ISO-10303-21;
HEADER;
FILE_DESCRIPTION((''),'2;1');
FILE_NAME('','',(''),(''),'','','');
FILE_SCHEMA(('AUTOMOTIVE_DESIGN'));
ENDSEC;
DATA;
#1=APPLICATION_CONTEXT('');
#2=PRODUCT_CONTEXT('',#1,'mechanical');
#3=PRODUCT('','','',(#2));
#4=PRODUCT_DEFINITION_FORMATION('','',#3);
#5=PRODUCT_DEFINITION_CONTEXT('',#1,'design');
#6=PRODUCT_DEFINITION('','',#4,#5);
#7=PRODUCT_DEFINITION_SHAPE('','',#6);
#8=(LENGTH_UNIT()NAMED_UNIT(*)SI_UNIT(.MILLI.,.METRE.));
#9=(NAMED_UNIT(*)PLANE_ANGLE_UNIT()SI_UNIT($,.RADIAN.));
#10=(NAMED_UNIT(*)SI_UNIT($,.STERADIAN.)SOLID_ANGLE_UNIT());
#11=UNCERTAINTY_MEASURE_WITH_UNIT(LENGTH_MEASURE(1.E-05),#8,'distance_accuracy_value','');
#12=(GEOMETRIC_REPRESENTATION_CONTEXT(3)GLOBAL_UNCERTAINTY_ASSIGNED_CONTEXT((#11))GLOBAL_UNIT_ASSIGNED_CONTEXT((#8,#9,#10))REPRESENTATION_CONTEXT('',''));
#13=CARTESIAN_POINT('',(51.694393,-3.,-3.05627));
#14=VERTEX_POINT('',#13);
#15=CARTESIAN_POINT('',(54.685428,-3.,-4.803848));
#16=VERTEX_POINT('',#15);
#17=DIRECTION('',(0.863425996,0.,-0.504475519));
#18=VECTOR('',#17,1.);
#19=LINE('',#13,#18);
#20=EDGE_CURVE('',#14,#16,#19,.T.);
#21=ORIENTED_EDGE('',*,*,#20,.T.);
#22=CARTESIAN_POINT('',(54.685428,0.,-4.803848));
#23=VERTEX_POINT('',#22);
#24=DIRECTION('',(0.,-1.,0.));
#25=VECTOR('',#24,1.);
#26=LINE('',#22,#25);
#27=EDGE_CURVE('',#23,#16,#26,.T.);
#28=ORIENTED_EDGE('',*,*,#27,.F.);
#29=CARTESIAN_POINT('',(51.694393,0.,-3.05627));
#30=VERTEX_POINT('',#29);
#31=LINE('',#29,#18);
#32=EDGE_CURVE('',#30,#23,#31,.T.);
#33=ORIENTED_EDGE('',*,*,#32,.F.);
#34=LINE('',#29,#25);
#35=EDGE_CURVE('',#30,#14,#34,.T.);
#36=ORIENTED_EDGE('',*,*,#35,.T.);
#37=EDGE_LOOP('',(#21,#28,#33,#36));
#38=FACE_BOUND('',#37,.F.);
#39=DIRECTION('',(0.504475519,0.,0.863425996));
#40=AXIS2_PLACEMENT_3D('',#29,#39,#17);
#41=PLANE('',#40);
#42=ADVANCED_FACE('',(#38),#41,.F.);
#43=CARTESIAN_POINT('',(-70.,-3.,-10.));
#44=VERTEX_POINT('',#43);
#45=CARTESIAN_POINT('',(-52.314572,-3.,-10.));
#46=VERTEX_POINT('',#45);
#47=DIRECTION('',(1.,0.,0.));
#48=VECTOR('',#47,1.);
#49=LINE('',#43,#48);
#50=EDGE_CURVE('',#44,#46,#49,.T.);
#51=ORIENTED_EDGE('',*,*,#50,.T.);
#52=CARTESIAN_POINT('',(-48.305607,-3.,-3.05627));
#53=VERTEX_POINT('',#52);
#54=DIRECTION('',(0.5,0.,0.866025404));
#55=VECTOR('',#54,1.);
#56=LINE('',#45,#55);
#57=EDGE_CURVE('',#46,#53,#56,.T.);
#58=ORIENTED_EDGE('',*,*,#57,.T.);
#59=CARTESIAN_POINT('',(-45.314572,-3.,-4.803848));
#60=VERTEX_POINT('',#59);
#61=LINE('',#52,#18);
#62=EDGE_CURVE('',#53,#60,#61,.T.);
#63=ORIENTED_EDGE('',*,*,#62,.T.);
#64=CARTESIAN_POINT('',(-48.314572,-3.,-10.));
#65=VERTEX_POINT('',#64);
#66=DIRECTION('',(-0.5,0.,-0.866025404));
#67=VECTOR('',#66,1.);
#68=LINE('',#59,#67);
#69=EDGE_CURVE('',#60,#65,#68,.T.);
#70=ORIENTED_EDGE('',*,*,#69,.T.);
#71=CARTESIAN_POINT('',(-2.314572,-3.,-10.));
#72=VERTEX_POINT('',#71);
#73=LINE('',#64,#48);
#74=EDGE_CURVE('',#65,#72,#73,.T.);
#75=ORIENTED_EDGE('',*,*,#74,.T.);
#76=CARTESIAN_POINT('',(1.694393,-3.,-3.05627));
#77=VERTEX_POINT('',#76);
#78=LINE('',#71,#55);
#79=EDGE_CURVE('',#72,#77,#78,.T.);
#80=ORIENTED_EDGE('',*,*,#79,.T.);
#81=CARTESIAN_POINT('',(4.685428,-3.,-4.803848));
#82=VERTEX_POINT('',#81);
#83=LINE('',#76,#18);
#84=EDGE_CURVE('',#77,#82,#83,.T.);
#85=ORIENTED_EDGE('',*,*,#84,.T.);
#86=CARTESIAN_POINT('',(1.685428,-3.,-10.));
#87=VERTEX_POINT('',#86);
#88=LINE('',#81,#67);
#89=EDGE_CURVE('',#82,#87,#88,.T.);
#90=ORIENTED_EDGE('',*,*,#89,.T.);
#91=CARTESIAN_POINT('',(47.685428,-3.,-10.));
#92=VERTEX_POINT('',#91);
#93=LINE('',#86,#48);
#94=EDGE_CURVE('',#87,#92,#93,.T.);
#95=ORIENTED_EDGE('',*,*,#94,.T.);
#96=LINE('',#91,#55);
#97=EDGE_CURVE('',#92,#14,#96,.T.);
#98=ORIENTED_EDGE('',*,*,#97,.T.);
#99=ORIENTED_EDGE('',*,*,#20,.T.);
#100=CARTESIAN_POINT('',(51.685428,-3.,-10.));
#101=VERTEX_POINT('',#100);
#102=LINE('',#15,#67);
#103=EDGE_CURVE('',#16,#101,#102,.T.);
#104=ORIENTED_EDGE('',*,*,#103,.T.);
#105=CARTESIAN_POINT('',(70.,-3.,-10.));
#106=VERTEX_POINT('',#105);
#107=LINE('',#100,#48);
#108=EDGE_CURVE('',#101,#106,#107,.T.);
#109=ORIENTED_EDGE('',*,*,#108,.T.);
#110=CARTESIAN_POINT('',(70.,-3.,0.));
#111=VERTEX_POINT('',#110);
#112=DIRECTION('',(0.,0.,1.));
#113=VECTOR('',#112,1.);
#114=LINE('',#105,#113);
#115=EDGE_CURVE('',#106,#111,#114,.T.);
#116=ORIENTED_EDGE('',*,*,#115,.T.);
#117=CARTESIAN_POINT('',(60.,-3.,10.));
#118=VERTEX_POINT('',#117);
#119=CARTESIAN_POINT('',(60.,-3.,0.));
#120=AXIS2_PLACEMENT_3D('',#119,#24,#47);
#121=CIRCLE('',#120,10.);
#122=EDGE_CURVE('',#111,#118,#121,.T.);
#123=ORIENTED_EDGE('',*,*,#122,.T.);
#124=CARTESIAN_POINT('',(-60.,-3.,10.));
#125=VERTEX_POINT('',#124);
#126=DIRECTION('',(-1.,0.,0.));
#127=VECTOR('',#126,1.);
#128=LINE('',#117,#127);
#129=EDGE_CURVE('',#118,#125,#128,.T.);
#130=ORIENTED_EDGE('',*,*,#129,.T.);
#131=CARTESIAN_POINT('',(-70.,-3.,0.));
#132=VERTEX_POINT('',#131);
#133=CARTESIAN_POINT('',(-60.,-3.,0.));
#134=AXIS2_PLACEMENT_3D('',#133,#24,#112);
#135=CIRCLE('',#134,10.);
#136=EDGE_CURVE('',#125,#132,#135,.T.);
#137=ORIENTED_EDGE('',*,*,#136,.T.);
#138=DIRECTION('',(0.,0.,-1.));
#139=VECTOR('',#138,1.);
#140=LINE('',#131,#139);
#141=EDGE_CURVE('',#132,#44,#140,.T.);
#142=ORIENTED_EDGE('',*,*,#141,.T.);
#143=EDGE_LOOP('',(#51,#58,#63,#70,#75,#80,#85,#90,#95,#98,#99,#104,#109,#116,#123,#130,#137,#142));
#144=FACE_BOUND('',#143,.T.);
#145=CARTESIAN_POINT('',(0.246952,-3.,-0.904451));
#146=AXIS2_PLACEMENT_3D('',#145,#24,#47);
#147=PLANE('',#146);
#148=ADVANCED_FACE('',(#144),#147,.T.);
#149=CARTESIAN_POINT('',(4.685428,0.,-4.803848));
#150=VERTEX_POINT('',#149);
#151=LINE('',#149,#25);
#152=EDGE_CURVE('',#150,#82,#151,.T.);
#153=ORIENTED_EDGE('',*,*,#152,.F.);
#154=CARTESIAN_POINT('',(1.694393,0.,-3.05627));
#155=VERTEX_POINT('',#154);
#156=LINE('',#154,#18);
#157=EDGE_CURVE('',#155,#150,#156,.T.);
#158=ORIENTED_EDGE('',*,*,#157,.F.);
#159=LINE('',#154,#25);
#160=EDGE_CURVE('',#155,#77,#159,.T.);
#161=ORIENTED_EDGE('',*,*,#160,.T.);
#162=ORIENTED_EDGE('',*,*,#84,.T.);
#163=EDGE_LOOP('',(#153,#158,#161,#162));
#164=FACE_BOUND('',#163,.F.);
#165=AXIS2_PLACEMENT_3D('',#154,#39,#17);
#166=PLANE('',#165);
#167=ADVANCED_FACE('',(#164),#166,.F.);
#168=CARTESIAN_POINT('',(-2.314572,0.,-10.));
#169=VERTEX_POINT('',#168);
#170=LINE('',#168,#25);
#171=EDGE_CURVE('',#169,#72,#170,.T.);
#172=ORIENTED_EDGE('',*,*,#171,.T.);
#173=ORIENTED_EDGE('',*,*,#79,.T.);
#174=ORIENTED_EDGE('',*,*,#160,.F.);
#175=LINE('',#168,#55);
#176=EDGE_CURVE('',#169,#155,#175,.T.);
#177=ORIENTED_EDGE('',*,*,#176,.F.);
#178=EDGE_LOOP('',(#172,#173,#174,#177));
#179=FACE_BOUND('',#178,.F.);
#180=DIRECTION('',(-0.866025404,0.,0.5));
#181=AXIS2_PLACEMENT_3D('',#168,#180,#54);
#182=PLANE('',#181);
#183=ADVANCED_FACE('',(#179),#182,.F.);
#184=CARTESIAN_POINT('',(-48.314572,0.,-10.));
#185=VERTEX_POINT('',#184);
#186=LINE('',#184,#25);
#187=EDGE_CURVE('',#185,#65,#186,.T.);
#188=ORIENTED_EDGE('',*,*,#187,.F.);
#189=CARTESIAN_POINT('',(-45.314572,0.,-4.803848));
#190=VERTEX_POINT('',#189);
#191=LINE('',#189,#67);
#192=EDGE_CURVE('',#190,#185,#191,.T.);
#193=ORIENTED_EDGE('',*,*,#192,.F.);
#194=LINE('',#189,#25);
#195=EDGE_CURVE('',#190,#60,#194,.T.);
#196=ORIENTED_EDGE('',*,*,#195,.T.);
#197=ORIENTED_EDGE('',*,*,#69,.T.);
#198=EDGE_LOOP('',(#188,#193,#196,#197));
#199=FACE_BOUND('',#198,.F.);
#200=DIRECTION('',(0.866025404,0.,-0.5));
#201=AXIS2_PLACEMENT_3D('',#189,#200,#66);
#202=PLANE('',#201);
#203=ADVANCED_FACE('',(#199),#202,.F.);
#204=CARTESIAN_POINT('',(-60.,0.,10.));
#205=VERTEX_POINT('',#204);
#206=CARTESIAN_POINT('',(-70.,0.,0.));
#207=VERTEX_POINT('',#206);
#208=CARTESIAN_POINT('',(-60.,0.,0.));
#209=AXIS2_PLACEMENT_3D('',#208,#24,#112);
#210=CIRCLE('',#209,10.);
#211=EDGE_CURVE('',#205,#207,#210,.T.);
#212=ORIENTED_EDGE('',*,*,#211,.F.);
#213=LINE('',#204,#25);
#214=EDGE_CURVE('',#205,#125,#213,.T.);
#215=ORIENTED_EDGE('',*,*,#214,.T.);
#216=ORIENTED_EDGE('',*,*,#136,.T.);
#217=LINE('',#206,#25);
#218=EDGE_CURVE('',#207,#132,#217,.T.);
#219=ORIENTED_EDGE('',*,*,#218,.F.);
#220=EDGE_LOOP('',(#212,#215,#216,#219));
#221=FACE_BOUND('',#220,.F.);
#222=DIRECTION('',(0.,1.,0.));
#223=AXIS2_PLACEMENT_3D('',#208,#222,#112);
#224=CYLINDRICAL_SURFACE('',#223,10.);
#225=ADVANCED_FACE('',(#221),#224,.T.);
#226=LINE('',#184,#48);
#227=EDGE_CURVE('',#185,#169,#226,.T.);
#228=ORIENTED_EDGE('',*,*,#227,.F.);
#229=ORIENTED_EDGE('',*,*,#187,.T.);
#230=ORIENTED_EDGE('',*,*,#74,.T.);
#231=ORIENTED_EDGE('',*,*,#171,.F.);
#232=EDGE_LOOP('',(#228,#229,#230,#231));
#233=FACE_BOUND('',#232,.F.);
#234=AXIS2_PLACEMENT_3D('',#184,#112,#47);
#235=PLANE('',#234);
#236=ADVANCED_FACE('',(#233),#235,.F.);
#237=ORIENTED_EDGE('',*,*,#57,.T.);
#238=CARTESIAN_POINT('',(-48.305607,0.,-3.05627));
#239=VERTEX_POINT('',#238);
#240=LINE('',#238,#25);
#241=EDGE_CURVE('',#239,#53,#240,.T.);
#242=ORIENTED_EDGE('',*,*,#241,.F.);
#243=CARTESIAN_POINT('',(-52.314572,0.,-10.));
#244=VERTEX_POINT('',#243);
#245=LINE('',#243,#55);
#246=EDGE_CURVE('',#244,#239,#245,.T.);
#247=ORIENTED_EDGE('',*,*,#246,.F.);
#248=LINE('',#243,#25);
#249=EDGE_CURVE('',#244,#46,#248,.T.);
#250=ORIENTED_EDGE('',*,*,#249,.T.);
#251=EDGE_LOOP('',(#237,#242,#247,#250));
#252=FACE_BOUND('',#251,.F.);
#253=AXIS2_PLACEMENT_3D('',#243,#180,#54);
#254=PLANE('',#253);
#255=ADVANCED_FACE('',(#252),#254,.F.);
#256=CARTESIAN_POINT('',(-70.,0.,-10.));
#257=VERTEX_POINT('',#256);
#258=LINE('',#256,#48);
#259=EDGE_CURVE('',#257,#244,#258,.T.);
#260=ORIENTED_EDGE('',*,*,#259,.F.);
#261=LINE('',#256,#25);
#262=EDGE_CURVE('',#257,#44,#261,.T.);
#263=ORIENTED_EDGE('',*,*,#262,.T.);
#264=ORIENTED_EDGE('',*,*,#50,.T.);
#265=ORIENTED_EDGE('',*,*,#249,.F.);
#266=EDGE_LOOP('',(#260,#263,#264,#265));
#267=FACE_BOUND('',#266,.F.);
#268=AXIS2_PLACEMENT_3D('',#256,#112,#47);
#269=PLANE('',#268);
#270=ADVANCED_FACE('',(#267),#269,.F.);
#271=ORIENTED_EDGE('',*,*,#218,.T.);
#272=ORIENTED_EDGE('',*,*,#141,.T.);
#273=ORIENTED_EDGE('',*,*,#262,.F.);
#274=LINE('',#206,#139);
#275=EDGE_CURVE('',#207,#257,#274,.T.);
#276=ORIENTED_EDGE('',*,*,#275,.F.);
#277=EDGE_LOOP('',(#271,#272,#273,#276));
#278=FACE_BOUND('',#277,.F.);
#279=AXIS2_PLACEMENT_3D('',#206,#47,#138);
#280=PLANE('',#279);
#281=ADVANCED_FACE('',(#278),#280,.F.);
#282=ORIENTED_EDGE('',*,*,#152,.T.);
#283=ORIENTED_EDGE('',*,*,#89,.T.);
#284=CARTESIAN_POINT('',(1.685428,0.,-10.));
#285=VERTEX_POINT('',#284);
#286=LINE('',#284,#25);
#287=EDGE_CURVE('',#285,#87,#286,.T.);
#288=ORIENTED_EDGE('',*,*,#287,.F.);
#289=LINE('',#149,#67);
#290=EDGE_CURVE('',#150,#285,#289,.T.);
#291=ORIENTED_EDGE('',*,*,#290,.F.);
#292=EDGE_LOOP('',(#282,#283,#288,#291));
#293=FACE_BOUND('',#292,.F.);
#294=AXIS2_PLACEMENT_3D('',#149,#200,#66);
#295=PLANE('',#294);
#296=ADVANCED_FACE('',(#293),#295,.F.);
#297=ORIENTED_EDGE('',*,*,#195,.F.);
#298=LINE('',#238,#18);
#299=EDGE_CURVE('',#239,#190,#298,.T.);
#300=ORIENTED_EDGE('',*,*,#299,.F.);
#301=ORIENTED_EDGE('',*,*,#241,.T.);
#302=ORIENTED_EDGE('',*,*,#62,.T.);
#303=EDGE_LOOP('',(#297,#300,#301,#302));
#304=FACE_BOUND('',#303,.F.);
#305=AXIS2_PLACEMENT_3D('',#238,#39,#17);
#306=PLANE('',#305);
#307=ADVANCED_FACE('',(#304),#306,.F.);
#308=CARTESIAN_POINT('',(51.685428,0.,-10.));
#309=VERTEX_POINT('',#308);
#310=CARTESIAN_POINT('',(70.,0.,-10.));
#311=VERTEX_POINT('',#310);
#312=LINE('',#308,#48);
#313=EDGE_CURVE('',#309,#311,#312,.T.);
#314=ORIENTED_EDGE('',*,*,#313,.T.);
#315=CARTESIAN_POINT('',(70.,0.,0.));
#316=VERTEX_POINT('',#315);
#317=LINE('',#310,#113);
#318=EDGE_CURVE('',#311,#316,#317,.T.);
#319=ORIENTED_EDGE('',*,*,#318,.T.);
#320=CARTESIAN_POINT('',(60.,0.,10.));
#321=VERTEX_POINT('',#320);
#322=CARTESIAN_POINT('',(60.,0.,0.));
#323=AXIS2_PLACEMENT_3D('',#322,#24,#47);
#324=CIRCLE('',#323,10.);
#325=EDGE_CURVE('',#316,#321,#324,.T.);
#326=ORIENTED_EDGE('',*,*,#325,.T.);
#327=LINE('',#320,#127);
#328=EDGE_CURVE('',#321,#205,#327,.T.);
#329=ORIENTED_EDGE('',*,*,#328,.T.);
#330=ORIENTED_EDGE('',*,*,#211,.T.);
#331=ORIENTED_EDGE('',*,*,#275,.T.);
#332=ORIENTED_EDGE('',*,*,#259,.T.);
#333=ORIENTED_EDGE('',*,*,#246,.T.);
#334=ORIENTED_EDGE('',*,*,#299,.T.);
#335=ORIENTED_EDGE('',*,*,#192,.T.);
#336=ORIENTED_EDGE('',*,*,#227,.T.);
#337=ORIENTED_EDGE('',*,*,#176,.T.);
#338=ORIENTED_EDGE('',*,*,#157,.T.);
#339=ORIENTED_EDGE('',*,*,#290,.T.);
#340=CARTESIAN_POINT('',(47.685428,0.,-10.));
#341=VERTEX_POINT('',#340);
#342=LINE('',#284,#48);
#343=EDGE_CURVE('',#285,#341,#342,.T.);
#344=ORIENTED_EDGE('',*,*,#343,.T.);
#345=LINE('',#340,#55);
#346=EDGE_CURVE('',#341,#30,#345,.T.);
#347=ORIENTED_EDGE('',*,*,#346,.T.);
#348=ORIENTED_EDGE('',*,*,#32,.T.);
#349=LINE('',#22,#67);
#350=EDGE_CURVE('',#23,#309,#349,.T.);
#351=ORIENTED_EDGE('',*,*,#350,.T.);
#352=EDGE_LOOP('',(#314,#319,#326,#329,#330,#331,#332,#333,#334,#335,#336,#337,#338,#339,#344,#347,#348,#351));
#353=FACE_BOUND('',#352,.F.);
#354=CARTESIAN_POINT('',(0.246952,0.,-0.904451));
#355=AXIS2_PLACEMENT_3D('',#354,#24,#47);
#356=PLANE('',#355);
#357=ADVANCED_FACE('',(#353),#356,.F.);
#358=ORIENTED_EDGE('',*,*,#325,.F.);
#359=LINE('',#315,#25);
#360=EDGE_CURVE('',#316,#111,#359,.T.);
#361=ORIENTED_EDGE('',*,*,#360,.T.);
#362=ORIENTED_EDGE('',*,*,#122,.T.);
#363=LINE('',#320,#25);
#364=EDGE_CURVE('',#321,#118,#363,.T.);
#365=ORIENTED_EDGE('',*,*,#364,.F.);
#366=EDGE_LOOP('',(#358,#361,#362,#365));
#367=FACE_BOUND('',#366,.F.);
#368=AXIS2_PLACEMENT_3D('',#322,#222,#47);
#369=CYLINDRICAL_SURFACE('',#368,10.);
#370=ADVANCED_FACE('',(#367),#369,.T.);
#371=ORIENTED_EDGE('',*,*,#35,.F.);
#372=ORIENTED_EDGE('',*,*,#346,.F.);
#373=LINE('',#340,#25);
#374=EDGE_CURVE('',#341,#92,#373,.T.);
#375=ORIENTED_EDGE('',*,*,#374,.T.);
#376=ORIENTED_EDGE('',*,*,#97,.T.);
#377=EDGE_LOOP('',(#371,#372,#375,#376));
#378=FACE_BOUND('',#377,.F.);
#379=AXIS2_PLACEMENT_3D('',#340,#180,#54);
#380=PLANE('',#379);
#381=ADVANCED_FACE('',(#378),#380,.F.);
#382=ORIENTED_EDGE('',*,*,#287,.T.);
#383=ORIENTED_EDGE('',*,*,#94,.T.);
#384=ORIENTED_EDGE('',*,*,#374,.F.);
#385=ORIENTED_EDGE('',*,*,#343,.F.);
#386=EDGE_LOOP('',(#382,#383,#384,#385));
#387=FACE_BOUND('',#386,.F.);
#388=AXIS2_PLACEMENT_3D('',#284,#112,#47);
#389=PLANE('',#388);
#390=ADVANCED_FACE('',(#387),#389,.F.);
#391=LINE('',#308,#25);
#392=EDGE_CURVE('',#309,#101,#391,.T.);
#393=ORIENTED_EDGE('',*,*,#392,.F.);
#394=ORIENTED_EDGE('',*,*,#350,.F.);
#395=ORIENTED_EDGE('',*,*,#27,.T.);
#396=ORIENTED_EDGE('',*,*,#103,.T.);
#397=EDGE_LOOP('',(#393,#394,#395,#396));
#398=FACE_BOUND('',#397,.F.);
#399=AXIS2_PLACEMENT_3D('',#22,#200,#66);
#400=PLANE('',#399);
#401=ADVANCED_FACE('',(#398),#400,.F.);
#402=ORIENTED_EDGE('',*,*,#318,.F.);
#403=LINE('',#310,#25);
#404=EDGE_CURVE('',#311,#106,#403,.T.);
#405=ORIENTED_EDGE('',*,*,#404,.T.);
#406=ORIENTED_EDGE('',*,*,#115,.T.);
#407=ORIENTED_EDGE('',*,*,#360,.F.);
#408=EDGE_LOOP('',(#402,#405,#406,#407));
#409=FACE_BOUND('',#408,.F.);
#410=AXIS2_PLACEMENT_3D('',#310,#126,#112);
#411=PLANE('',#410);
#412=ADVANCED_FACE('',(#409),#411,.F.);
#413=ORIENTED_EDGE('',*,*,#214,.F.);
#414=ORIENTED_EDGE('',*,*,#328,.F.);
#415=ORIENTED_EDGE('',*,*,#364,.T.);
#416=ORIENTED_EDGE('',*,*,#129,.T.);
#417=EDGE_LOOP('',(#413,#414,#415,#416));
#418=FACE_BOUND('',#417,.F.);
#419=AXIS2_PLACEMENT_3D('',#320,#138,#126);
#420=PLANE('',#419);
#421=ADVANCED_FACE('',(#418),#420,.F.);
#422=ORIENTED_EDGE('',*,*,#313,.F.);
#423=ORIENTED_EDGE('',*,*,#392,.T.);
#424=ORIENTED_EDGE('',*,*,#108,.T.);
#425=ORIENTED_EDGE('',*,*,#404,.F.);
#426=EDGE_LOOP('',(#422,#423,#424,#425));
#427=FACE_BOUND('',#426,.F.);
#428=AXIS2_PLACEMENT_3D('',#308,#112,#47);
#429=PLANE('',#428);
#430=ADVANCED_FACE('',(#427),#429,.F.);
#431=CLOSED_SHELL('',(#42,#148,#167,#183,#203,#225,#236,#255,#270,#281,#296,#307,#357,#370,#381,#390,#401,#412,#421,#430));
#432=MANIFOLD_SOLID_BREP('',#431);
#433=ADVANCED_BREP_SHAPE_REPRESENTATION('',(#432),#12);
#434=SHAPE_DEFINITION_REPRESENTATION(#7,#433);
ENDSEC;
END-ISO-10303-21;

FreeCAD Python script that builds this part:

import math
import FreeCAD as App
import Part
import Sketcher

V = App.Vector
Q = App.Units.Quantity

doc = App.newDocument("Part")
body = doc.addObject("PartDesign::Body", "Body")

# Sketch on XZ plane
sketch1 = body.newObject("Sketcher::SketchObject", "Sketch")
sketch1.AttachmentSupport = (doc.getObject("XZ_Plane"), [""])
sketch1.MapMode = "FlatFace"
sketch1.addGeometry(Part.LineSegment(V(51.7, -10, 0), V(70, -10, 0)), False)
sketch1.addGeometry(Part.LineSegment(V(70, -10, 0), V(70, 0, 0)), False)
sketch1.addGeometry(Part.ArcOfCircle(Part.Circle(V(60, 0, 0), V(0, 0, 1), 10), math.radians(0), math.radians(90)), False)
sketch1.addGeometry(Part.LineSegment(V(60, 10, 0), V(-60, 10, 0)), False)
sketch1.addGeometry(Part.ArcOfCircle(Part.Circle(V(-60, 0, 0), V(0, 0, 1), 10), math.radians(90), math.radians(180)), False)
sketch1.addGeometry(Part.LineSegment(V(-70, 0, 0), V(-70, -10, 0)), False)
sketch1.addGeometry(Part.LineSegment(V(-70, -10, 0), V(-52.3, -10, 0)), False)
sketch1.addGeometry(Part.LineSegment(V(-52.3, -10, 0), V(-48.3, -3.1, 0)), False)
sketch1.addGeometry(Part.LineSegment(V(-48.3, -3.1, 0), V(-45.3, -4.8, 0)), False)
sketch1.addGeometry(Part.LineSegment(V(-45.3, -4.8, 0), V(-48.3, -10, 0)), False)
sketch1.addGeometry(Part.LineSegment(V(-48.3, -10, 0), V(-2.3, -10, 0)), False)
sketch1.addGeometry(Part.LineSegment(V(-2.3, -10, 0), V(1.7, -3.1, 0)), False)
sketch1.addGeometry(Part.LineSegment(V(1.7, -3.1, 0), V(4.7, -4.8, 0)), False)
sketch1.addGeometry(Part.LineSegment(V(4.7, -4.8, 0), V(1.7, -10, 0)), False)
sketch1.addGeometry(Part.LineSegment(V(1.7, -10, 0), V(47.7, -10, 0)), False)
sketch1.addGeometry(Part.LineSegment(V(47.7, -10, 0), V(51.7, -3.1, 0)), False)
sketch1.addGeometry(Part.LineSegment(V(51.7, -3.1, 0), V(54.7, -4.8, 0)), False)
sketch1.addGeometry(Part.LineSegment(V(54.7, -4.8, 0), V(51.7, -10, 0)), False)
sketch1.addConstraint(Sketcher.Constraint("Coincident", 0, 2, 1, 1))
sketch1.addConstraint(Sketcher.Constraint("Tangent", 1, 2, 2, 1))
sketch1.addConstraint(Sketcher.Constraint("Tangent", 2, 2, 3, 1))
sketch1.addConstraint(Sketcher.Constraint("Tangent", 3, 2, 4, 1))
sketch1.addConstraint(Sketcher.Constraint("Tangent", 4, 2, 5, 1))
sketch1.addConstraint(Sketcher.Constraint("Coincident", 5, 2, 6, 1))
sketch1.addConstraint(Sketcher.Constraint("Coincident", 6, 2, 7, 1))
sketch1.addConstraint(Sketcher.Constraint("Coincident", 7, 2, 8, 1))
sketch1.addConstraint(Sketcher.Constraint("Coincident", 8, 2, 9, 1))
sketch1.addConstraint(Sketcher.Constraint("Coincident", 9, 2, 10, 1))
sketch1.addConstraint(Sketcher.Constraint("Coincident", 10, 2, 11, 1))
sketch1.addConstraint(Sketcher.Constraint("Coincident", 11, 2, 12, 1))
sketch1.addConstraint(Sketcher.Constraint("Coincident", 12, 2, 13, 1))
sketch1.addConstraint(Sketcher.Constraint("Coincident", 13, 2, 14, 1))
sketch1.addConstraint(Sketcher.Constraint("Coincident", 14, 2, 15, 1))
sketch1.addConstraint(Sketcher.Constraint("Coincident", 15, 2, 16, 1))
sketch1.addConstraint(Sketcher.Constraint("Coincident", 16, 2, 17, 1))
sketch1.addConstraint(Sketcher.Constraint("Coincident", 17, 2, 0, 1))
sketch1.addConstraint(Sketcher.Constraint("Horizontal", 0))
sketch1.addConstraint(Sketcher.Constraint("Vertical", 1))
sketch1.addConstraint(Sketcher.Constraint("Horizontal", 3))
sketch1.addConstraint(Sketcher.Constraint("Vertical", 5))
sketch1.addConstraint(Sketcher.Constraint("Horizontal", 6))
sketch1.addConstraint(Sketcher.Constraint("Horizontal", 10))
sketch1.addConstraint(Sketcher.Constraint("Horizontal", 14))
sketch1.addConstraint(Sketcher.Constraint("Equal", 2, 4))
sketch1.addConstraint(Sketcher.Constraint("Symmetric", 2, 3, 4, 3, -1, 1))
sketch1.addConstraint(Sketcher.Constraint("Parallel", 7, 9))
sketch1.addConstraint(Sketcher.Constraint("Parallel", 9, 11))
sketch1.addConstraint(Sketcher.Constraint("Parallel", 8, 12))
sketch1.addConstraint(Sketcher.Constraint("Parallel", 11, 13))
sketch1.addConstraint(Sketcher.Constraint("Parallel", 13, 15))
sketch1.addConstraint(Sketcher.Constraint("Parallel", 12, 16))
sketch1.addConstraint(Sketcher.Constraint("Parallel", 15, 17))
sketch1.addConstraint(Sketcher.Constraint("Horizontal", 0, 2, 5, 2))
sketch1.addConstraint(Sketcher.Constraint("Horizontal", 6, 2, 9, 2))
sketch1.addConstraint(Sketcher.Constraint("Horizontal", 7, 2, 11, 2))
sketch1.addConstraint(Sketcher.Constraint("Horizontal", 8, 2, 12, 2))
sketch1.addConstraint(Sketcher.Constraint("Horizontal", 10, 2, 13, 2))
sketch1.addConstraint(Sketcher.Constraint("Horizontal", 11, 2, 15, 2))
sketch1.addConstraint(Sketcher.Constraint("Horizontal", 12, 2, 16, 2))
sketch1.addConstraint(Sketcher.Constraint("Equal", 10, 14))
sketch1.addConstraint(Sketcher.Constraint("Radius", 2, Q("10 mm")))
sketch1.addConstraint(Sketcher.Constraint("DistanceX", 3, 2, 3, 1, Q("120 mm")))
sketch1.addConstraint(Sketcher.Constraint("DistanceX", 10, 1, 10, 2, Q("46 mm")))
sketch1.addConstraint(Sketcher.Constraint("DistanceY", 1, 1, 1, 2, Q("10 mm")))
sketch1.addConstraint(Sketcher.Constraint("Angle", 7, Q("60 deg")))
sketch1.addConstraint(Sketcher.Constraint("Distance", 9, Q("6 mm")))
sketch1.addConstraint(Sketcher.Constraint("DistanceX", 6, 2, 8, 2, Q("7 mm")))
sketch1.addConstraint(Sketcher.Constraint("Distance", 7, Q("8.017929 mm")))
sketch1.addConstraint(Sketcher.Constraint("DistanceX", 0, 1, 0, 2, Q("18.314572 mm")))
pad1 = body.newObject("PartDesign::Pad", "Pad")
pad1.Profile = sketch1
pad1.Length = 3

doc.recompute()
